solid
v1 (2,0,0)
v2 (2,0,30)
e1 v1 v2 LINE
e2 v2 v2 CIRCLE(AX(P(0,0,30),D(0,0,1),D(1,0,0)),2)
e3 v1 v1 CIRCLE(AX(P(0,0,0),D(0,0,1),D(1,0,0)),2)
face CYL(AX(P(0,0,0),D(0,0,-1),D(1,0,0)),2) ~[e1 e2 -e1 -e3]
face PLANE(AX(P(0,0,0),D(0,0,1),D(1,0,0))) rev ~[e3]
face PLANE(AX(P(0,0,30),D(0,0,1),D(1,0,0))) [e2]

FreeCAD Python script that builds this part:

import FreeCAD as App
import Part
import Sketcher
from FreeCAD import Vector

doc = App.newDocument("Part")
params = doc.addObject("Spreadsheet::Sheet", "Params")
for row, (alias, value) in enumerate([
    ("sketch1_diameter", "4 mm"),
    ("pad1_length", "30 mm"),
], start=1):
    params.set(f"A{row}", alias)
    params.set(f"B{row}", "=" + value)
    params.setAlias(f"B{row}", alias)

body = doc.addObject("PartDesign::Body", "Body")

# Sketch on XY plane
sketch1 = body.newObject("Sketcher::SketchObject", "Sketch")
sketch1.AttachmentSupport = (doc.getObject("XY_Plane"), [""])
sketch1.MapMode = "FlatFace"
sketch1.addGeometry(Part.Circle(Vector(0, 0, 0), Vector(0, 0, 1), 2), False)
sketch1.addConstraint([
    Sketcher.Constraint("Coincident", 0, 3, -1, 1),
    Sketcher.Constraint("Diameter", 0, 4.0),
])
sketch1.setExpression("Constraints[1]", "Params.sketch1_diameter")
pad1 = body.newObject("PartDesign::Pad", "Pad")
pad1.Profile = sketch1
pad1.setExpression("Length", "Params.pad1_length")

doc.recompute()
